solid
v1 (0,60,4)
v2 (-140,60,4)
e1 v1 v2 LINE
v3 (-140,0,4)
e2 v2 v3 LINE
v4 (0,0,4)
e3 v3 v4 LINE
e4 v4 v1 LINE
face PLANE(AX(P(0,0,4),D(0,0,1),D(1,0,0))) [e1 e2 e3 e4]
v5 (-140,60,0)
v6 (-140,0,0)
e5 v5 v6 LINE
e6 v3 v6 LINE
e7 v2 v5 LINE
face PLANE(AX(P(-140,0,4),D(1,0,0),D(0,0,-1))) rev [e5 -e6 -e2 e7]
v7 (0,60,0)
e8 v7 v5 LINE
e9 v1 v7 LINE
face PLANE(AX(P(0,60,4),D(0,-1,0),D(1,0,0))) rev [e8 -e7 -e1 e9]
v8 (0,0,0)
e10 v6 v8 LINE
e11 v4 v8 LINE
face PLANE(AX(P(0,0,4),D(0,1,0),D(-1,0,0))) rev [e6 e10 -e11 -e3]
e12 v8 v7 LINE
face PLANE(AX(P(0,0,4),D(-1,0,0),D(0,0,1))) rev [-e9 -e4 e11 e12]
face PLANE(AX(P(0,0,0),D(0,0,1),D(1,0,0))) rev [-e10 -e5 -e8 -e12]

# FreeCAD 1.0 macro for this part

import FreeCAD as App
import Part
import Sketcher
from FreeCAD import Vector
Q = App.Units.Quantity


def add_polygon(sketch, points):
    """Adds a closed chain of lines whose ends are joined by coincident constraints."""
    first, n = sketch.GeometryCount, len(points)
    for a, b in zip(points, points[1:] + points[:1]):
        sketch.addGeometry(Part.LineSegment(App.Vector(*a, 0), App.Vector(*b, 0)), False)
    for i in range(n):
        sketch.addConstraint(Sketcher.Constraint("Coincident", first + i, 2, first + (i + 1) % n, 1))

doc = App.newDocument("Part")
body = doc.addObject("PartDesign::Body", "Body")

# Sketch on XY plane
sketch1 = body.newObject("Sketcher::SketchObject", "Sketch")
sketch1.AttachmentSupport = (doc.getObject("XY_Plane"), [""])
sketch1.MapMode = "FlatFace"
add_polygon(sketch1, [(-140, 60), (-140, 0), (0, 0), (0, 60)])  # lines 0-3
sketch1.addConstraint(Sketcher.Constraint("Vertical", 0))
sketch1.addConstraint(Sketcher.Constraint("Horizontal", 1))
sketch1.addConstraint(Sketcher.Constraint("Vertical", 2))
sketch1.addConstraint(Sketcher.Constraint("Horizontal", 3))
sketch1.addConstraint(Sketcher.Constraint("Coincident", 1, 2, -1, 1))
sketch1.addConstraint(Sketcher.Constraint("DistanceX", 1, 1, 1, 2, Q("140 mm")))
sketch1.addConstraint(Sketcher.Constraint("DistanceY", 0, 2, 0, 1, Q("60 mm")))
pad1 = body.newObject("PartDesign::Pad", "Pad")
pad1.Profile = sketch1
pad1.Length = 4

doc.recompute()
